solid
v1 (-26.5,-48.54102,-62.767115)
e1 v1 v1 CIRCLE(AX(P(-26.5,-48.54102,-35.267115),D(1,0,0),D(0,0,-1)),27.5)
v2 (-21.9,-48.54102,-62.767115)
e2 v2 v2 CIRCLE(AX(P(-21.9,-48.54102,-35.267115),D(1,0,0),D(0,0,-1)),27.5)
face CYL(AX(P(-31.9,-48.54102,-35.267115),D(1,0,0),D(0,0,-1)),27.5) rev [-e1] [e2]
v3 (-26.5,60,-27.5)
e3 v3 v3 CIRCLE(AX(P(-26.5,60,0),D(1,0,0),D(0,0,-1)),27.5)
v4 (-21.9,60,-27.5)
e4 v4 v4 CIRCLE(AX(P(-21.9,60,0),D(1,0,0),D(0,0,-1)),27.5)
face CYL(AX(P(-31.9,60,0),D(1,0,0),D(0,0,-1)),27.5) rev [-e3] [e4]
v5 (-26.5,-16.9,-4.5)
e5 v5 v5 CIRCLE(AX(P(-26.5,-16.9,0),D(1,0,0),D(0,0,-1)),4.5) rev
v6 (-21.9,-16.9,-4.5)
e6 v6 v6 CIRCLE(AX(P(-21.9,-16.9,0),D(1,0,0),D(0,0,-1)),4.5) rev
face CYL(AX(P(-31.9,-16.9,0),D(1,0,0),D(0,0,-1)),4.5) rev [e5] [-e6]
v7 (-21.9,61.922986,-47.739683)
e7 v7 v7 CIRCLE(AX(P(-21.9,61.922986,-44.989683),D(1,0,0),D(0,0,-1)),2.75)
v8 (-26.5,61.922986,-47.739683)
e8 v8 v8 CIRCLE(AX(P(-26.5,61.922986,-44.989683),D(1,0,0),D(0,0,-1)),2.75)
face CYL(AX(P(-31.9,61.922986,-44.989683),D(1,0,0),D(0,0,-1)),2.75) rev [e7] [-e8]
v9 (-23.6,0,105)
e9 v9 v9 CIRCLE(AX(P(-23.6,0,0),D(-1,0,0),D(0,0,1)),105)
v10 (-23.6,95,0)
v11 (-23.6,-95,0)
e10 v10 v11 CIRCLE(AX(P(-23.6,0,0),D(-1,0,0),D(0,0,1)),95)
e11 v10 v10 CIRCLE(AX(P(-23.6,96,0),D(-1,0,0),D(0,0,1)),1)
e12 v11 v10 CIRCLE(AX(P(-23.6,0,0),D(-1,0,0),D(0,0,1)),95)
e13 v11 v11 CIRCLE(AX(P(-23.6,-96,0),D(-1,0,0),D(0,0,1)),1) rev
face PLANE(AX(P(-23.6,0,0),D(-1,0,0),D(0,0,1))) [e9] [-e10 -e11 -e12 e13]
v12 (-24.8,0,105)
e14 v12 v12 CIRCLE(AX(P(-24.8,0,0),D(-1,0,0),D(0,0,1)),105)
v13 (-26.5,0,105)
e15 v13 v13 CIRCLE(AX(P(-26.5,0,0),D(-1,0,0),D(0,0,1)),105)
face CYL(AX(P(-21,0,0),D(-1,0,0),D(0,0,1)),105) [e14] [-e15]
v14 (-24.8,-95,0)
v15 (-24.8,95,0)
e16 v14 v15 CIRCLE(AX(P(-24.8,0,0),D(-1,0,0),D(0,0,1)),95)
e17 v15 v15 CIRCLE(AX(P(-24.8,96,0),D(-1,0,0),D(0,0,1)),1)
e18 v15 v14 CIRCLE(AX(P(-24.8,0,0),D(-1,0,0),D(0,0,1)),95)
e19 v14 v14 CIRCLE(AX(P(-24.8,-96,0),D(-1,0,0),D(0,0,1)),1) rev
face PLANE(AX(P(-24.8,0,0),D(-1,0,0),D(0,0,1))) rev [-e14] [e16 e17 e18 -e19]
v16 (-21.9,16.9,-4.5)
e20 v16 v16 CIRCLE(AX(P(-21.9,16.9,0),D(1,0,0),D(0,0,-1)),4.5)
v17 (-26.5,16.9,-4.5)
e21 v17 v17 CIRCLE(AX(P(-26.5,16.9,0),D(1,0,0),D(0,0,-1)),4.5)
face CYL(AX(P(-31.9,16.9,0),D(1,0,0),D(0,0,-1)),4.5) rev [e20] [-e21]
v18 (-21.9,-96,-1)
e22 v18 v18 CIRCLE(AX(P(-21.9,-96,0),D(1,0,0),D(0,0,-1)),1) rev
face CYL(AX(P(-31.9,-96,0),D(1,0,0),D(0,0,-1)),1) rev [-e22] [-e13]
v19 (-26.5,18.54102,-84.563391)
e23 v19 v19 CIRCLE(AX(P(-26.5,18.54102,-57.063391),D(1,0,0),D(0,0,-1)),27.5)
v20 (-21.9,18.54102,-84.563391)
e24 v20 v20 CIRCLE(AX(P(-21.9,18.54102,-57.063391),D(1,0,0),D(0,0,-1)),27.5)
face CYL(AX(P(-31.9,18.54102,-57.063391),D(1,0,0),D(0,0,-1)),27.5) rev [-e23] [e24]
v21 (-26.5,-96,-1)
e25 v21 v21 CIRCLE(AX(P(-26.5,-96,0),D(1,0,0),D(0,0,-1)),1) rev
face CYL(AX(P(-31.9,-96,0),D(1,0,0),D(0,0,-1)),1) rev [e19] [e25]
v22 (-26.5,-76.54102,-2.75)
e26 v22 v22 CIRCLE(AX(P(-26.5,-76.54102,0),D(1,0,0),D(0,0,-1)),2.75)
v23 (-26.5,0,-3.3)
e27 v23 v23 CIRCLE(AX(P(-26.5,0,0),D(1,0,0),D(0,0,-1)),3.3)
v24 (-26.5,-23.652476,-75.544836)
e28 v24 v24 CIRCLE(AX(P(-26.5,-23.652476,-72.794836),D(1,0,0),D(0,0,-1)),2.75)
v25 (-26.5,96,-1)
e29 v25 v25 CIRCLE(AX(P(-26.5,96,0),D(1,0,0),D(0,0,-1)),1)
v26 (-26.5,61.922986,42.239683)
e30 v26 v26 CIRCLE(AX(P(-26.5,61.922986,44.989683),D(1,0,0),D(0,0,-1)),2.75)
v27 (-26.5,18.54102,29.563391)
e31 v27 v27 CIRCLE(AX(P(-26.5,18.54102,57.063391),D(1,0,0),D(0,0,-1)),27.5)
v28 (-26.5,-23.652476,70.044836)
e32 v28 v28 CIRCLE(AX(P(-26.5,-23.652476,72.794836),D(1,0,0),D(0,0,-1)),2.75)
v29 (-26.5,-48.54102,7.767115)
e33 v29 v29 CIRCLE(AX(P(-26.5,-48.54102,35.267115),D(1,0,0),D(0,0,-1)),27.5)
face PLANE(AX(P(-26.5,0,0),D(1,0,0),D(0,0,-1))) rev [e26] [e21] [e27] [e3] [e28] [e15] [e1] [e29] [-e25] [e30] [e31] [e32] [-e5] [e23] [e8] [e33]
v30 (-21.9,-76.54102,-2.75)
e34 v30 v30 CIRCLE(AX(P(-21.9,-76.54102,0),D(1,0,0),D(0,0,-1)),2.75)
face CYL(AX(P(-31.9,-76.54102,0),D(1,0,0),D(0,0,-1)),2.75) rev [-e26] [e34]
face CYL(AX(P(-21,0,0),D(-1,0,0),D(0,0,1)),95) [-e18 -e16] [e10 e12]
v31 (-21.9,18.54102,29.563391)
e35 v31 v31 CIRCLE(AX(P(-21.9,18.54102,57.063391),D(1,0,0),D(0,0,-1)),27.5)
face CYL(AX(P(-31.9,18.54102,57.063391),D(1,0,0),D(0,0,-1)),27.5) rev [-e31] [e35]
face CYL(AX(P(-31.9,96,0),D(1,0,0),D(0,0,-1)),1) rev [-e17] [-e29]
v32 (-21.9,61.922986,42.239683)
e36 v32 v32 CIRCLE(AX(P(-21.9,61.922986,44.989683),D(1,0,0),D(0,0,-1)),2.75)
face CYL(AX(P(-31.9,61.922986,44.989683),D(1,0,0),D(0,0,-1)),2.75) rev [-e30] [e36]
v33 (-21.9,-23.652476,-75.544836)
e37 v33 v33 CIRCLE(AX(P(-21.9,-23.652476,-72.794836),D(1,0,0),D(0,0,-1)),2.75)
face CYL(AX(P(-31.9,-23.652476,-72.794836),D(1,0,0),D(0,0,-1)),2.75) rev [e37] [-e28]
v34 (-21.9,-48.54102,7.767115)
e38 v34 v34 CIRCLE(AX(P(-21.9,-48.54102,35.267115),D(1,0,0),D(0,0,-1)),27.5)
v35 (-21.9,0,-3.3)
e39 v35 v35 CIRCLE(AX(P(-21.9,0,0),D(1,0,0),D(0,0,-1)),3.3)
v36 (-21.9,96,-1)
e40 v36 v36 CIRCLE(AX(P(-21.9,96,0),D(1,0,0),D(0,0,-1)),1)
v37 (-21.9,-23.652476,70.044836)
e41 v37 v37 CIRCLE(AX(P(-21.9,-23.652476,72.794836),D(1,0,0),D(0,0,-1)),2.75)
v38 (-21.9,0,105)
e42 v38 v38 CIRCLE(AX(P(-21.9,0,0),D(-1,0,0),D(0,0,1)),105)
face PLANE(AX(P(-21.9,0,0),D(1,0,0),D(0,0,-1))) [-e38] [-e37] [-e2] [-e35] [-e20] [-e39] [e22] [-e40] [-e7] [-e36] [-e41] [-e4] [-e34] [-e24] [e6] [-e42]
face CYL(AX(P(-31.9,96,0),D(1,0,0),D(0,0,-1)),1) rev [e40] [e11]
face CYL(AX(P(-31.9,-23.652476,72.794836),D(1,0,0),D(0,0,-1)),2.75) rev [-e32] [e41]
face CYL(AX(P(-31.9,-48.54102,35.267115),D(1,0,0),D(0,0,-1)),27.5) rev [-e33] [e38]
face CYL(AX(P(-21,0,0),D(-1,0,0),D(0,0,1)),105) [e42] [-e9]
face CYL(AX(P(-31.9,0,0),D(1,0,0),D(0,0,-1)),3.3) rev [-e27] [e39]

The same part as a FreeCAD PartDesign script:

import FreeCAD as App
import Part
import Sketcher

V = App.Vector

doc = App.newDocument("Part")
body = doc.addObject("PartDesign::Body", "Body")

sketch1 = body.newObject("Sketcher::SketchObject", "Sketch")
sketch1.AttachmentSupport = (doc.getObject("XY_Plane"), [""])
sketch1.MapMode = "FlatFace"
sketch1.addGeometry([
    Part.LineSegment(V(-21.9, 105, 0), V(-23.6, 105, 0)),
    Part.LineSegment(V(-23.6, 105, 0), V(-23.6, 95, 0)),
    Part.LineSegment(V(-23.6, 95, 0), V(-24.8, 95, 0)),
    Part.LineSegment(V(-24.8, 95, 0), V(-24.8, 105, 0)),
    Part.LineSegment(V(-24.8, 105, 0), V(-26.5, 105, 0)),
    Part.LineSegment(V(-26.5, 105, 0), V(-26.5, 0, 0)),
    Part.LineSegment(V(-26.5, 0, 0), V(-21.9, 0, 0)),
    Part.LineSegment(V(-21.9, 0, 0), V(-21.9, 105, 0)),
], False)
sketch1.addConstraint([
    Sketcher.Constraint("Coincident", 0, 2, 1, 1),
    Sketcher.Constraint("Coincident", 1, 2, 2, 1),
    Sketcher.Constraint("Coincident", 2, 2, 3, 1),
    Sketcher.Constraint("Coincident", 3, 2, 4, 1),
    Sketcher.Constraint("Coincident", 4, 2, 5, 1),
    Sketcher.Constraint("Coincident", 5, 2, 6, 1),
    Sketcher.Constraint("Coincident", 6, 2, 7, 1),
    Sketcher.Constraint("Coincident", 7, 2, 0, 1),
    Sketcher.Constraint("Horizontal", 0),
    Sketcher.Constraint("Vertical", 1),
    Sketcher.Constraint("Horizontal", 2),
    Sketcher.Constraint("Vertical", 3),
    Sketcher.Constraint("Horizontal", 4),
    Sketcher.Constraint("Vertical", 5),
    Sketcher.Constraint("Horizontal", 6),
    Sketcher.Constraint("Vertical", 7),
    Sketcher.Constraint("PointOnObject", 5, 2, -1),
    Sketcher.Constraint("Horizontal", 0, 2, 3, 2),
    Sketcher.Constraint("Equal", 0, 4),
    Sketcher.Constraint("DistanceY", 1, 2, 1, 1, 10.0),
    Sketcher.Constraint("DistanceY", 5, 2, 5, 1, 105.0),
    Sketcher.Constraint("DistanceX", 0, 2, 0, 1, 1.7),
    Sketcher.Constraint("DistanceX", 2, 2, 2, 1, 1.2),
    Sketcher.Constraint("DistanceX", 0, 2, -1, 1, 23.6),
])
revolution = body.newObject("PartDesign::Revolution", "Revolution")
revolution.Profile = sketch1
revolution.ReferenceAxis = (sketch1, ["H_Axis"])
revolution.Angle = 360

sketch2 = body.newObject("Sketcher::SketchObject", "Sketch001")
sketch2.AttachmentSupport = (doc.getObject("YZ_Plane"), [""])
sketch2.MapMode = "FlatFace"
sketch2.AttachmentOffset = App.Placement(V(0, 0, -21.9), App.Rotation())
sketch2.addGeometry([
    Part.Circle(V(0, 0, 0), V(0, 0, 1), 3.3),
    Part.Circle(V(16.9, 0, 0), V(0, 0, 1), 4.5),
    Part.Circle(V(96, 0, 0), V(0, 0, 1), 1),
    Part.Circle(V(60, 0, 0), V(0, 0, 1), 27.5),
    Part.Circle(V(-16.9, 0, 0), V(0, 0, 1), 4.5),
    Part.Circle(V(18.54102, -57.063391, 0), V(0, 0, 1), 27.5),
    Part.Circle(V(-23.652476, -72.794836, 0), V(0, 0, 1), 2.75),
    Part.Circle(V(-48.54102, -35.267115, 0), V(0, 0, 1), 27.5),
    Part.Circle(V(-48.54102, 35.267115, 0), V(0, 0, 1), 27.5),
    Part.Circle(V(18.54102, 57.063391, 0), V(0, 0, 1), 27.5),
    Part.Circle(V(-96, 0, 0), V(0, 0, 1), 1),
    Part.Circle(V(-76.54102, 0, 0), V(0, 0, 1), 2.75),
    Part.Circle(V(-23.652476, 72.794836, 0), V(0, 0, 1), 2.75),
    Part.Circle(V(61.922986, 44.989683, 0), V(0, 0, 1), 2.75),
    Part.Circle(V(61.922986, -44.989683, 0), V(0, 0, 1), 2.75),
], False)
sketch2.addConstraint([
    Sketcher.Constraint("Coincident", 0, 3, -1, 1),
    Sketcher.Constraint("Equal", 1, 4),
    Sketcher.Constraint("Equal", 3, 5),
    Sketcher.Constraint("Equal", 5, 7),
    Sketcher.Constraint("Equal", 7, 8),
    Sketcher.Constraint("Equal", 8, 9),
    Sketcher.Constraint("Equal", 2, 10),
    Sketcher.Constraint("Equal", 6, 11),
    Sketcher.Constraint("Equal", 11, 12),
    Sketcher.Constraint("Equal", 12, 13),
    Sketcher.Constraint("Equal", 13, 14),
    Sketcher.Constraint("Symmetric", 1, 3, 4, 3, -1, 1),
    Sketcher.Constraint("Symmetric", 2, 3, 10, 3, -1, 1),
    Sketcher.Constraint("Symmetric", 7, 3, 8, 3, -1),
    Sketcher.Constraint("Symmetric", 5, 3, 9, 3, -1),
    Sketcher.Constraint("Symmetric", 6, 3, 12, 3, -1),
    Sketcher.Constraint("Symmetric", 13, 3, 14, 3, -1),
    Sketcher.Constraint("PointOnObject", 1, 3, -1),
    Sketcher.Constraint("PointOnObject", 2, 3, -1),
    Sketcher.Constraint("PointOnObject", 3, 3, -1),
    Sketcher.Constraint("PointOnObject", 11, 3, -1),
    Sketcher.Constraint("Diameter", 1, 9.0),
    Sketcher.Constraint("Diameter", 2, 2.0),
    Sketcher.Constraint("Diameter", 3, 55.0),
    Sketcher.Constraint("Diameter", 0, 6.6),
    Sketcher.Constraint("Diameter", 6, 5.5),
    Sketcher.Constraint("DistanceX", -1, 1, 2, 3, 96.0),
    Sketcher.Constraint("DistanceX", -1, 1, 3, 3, 60.0),
    Sketcher.Constraint("DistanceX", 11, 3, 7, 3, 28.0),
    Sketcher.Constraint("DistanceX", -1, 1, 1, 3, 16.9),
    Sketcher.Constraint("DistanceX", -1, 1, 5, 3, 18.54102),
    Sketcher.Constraint("DistanceY", 5, 3, -1, 1, 57.063391),
    Sketcher.Constraint("DistanceX", 7, 3, -1, 1, 48.54102),
    Sketcher.Constraint("DistanceY", 6, 3, 7, 3, 37.52772),
    Sketcher.Constraint("DistanceY", 7, 3, 8, 3, 70.53423),
    Sketcher.Constraint("DistanceY", 13, 3, 9, 3, 12.073708),
    Sketcher.Constraint("DistanceX", 6, 3, -1, 1, 23.652476),
    Sketcher.Constraint("DistanceX", -1, 1, 13, 3, 61.922986),
])
pocket1 = body.newObject("PartDesign::Pocket", "Pocket")
pocket1.Profile = sketch2
pocket1.Length = 10

doc.recompute()
